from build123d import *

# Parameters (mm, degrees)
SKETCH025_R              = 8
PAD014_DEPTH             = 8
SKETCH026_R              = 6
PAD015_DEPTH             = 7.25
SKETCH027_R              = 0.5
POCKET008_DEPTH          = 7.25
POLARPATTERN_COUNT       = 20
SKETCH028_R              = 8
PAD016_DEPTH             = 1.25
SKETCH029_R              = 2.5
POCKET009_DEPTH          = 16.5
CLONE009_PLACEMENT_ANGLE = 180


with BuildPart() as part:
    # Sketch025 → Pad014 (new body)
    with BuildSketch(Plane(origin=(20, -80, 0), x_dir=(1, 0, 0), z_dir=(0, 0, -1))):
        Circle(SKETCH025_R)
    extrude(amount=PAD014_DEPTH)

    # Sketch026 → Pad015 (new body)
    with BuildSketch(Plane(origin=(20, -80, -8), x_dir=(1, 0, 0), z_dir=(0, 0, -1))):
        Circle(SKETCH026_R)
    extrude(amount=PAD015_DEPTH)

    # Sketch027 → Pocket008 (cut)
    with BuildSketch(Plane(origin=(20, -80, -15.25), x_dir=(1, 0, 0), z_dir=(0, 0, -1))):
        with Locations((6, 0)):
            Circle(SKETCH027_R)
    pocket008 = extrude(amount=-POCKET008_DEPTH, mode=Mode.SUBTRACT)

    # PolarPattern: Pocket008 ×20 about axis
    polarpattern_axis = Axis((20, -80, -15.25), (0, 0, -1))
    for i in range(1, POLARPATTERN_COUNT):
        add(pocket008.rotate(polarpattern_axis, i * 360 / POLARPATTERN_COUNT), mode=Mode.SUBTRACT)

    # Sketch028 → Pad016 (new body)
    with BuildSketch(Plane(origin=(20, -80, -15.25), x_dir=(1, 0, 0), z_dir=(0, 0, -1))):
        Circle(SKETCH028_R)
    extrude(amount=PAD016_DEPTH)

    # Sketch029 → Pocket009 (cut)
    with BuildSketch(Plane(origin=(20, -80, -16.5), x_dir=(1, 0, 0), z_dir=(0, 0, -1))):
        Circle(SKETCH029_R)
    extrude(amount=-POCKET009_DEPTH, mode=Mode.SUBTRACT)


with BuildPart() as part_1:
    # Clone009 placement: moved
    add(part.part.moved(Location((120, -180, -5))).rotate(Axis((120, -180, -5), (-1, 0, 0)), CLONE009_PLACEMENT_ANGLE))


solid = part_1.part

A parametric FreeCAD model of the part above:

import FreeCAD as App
import Part
import Sketcher
from FreeCAD import Vector

doc = App.newDocument("Part")
body = doc.addObject("PartDesign::Body", "Body")

# Sketch on XY plane
sketch1 = doc.addObject("Sketcher::SketchObject", "Sketch")
body.addObject(sketch1)
sketch1.AttachmentSupport = (doc.XY_Plane, [""])
sketch1.MapMode = "FlatFace"
sketch1.addGeometry(Part.Circle(Vector(20, -80, 0), Vector(0, 0, 1), 8), False)
sketch1.addConstraint(Sketcher.Constraint("Diameter", 0, 16.0))
sketch1.addConstraint(Sketcher.Constraint("DistanceX", -1, 1, 0, 3, 20.0))
sketch1.addConstraint(Sketcher.Constraint("DistanceY", 0, 3, -1, 1, 80.0))
pad1 = doc.addObject("PartDesign::Pad", "Pad")
body.addObject(pad1)
pad1.Profile = sketch1
pad1.Length = 8
pad1.Reversed = True

# Sketch on XY plane
sketch2 = doc.addObject("Sketcher::SketchObject", "Sketch001")
body.addObject(sketch2)
sketch2.AttachmentSupport = (doc.XY_Plane, [""])
sketch2.MapMode = "FlatFace"
sketch2.AttachmentOffset = App.Placement(Vector(0, 0, -8), App.Rotation())
sketch2.addGeometry(Part.Circle(Vector(20, -80, 0), Vector(0, 0, 1), 6), False)
sketch2.addConstraint(Sketcher.Constraint("Diameter", 0, 12.0))
sketch2.addConstraint(Sketcher.Constraint("DistanceX", -1, 1, 0, 3, 20.0))
sketch2.addConstraint(Sketcher.Constraint("DistanceY", 0, 3, -1, 1, 80.0))
pad2 = doc.addObject("PartDesign::Pad", "Pad001")
body.addObject(pad2)
pad2.Profile = sketch2
pad2.Length = 7.25
pad2.Reversed = True

# Sketch on XY plane
sketch3 = doc.addObject("Sketcher::SketchObject", "Sketch002")
body.addObject(sketch3)
sketch3.AttachmentSupport = (doc.XY_Plane, [""])
sketch3.MapMode = "FlatFace"
sketch3.AttachmentOffset = App.Placement(Vector(0, 0, -15.25), App.Rotation())
sketch3.addGeometry(Part.Circle(Vector(26, -80, 0), Vector(0, 0, 1), 0.5), False)
sketch3.addConstraint(Sketcher.Constraint("Diameter", 0, 1.0))
sketch3.addConstraint(Sketcher.Constraint("DistanceX", -1, 1, 0, 3, 26.0))
sketch3.addConstraint(Sketcher.Constraint("DistanceY", 0, 3, -1, 1, 80.0))
pocket1 = doc.addObject("PartDesign::Pocket", "Pocket")
body.addObject(pocket1)
pocket1.Profile = sketch3
pocket1.Length = 7.25
pocket1.Reversed = True
doc.recompute()

datumline = doc.addObject("PartDesign::Line", "DatumLine")
body.addObject(datumline)
datumline.Placement = App.Placement(Vector(20, -80, 0), App.Rotation(Vector(0, 0, 1), Vector(0, 0, -1)))
polarpattern = doc.addObject("PartDesign::PolarPattern", "PolarPattern")
body.addObject(polarpattern)
polarpattern.Originals = [pocket1]
polarpattern.Axis = (datumline, [""])
polarpattern.Angle = 360
polarpattern.Occurrences = 20
body.Tip = polarpattern

# Sketch on XY plane
sketch4 = doc.addObject("Sketcher::SketchObject", "Sketch003")
body.addObject(sketch4)
sketch4.AttachmentSupport = (doc.XY_Plane, [""])
sketch4.MapMode = "FlatFace"
sketch4.AttachmentOffset = App.Placement(Vector(0, 0, -15.25), App.Rotation())
sketch4.addGeometry(Part.Circle(Vector(20, -80, 0), Vector(0, 0, 1), 8), False)
sketch4.addConstraint(Sketcher.Constraint("Diameter", 0, 16.0))
sketch4.addConstraint(Sketcher.Constraint("DistanceX", -1, 1, 0, 3, 20.0))
sketch4.addConstraint(Sketcher.Constraint("DistanceY", 0, 3, -1, 1, 80.0))
pad3 = doc.addObject("PartDesign::Pad", "Pad002")
body.addObject(pad3)
pad3.Profile = sketch4
pad3.Length = 1.25
pad3.Reversed = True

# Sketch on XY plane
sketch5 = doc.addObject("Sketcher::SketchObject", "Sketch004")
body.addObject(sketch5)
sketch5.AttachmentSupport = (doc.XY_Plane, [""])
sketch5.MapMode = "FlatFace"
sketch5.AttachmentOffset = App.Placement(Vector(0, 0, -16.5), App.Rotation())
sketch5.addGeometry(Part.Circle(Vector(20, -80, 0), Vector(0, 0, 1), 2.5), False)
sketch5.addConstraint(Sketcher.Constraint("Diameter", 0, 5.0))
sketch5.addConstraint(Sketcher.Constraint("DistanceX", -1, 1, 0, 3, 20.0))
sketch5.addConstraint(Sketcher.Constraint("DistanceY", 0, 3, -1, 1, 80.0))
pocket2 = doc.addObject("PartDesign::Pocket", "Pocket001")
body.addObject(pocket2)
pocket2.Profile = sketch5
pocket2.Length = 16.5
pocket2.Reversed = True
body2 = doc.addObject("PartDesign::Body", "Body001")
doc.recompute()

body.Placement = App.Placement(Vector(120, -180, -5), App.Rotation(Vector(-1, 0, 0), 180))
boolean = doc.addObject("PartDesign::Boolean", "Boolean")
body2.addObject(boolean)
boolean.Type = "Fuse"
boolean.addObjects([body])

doc.recompute()
